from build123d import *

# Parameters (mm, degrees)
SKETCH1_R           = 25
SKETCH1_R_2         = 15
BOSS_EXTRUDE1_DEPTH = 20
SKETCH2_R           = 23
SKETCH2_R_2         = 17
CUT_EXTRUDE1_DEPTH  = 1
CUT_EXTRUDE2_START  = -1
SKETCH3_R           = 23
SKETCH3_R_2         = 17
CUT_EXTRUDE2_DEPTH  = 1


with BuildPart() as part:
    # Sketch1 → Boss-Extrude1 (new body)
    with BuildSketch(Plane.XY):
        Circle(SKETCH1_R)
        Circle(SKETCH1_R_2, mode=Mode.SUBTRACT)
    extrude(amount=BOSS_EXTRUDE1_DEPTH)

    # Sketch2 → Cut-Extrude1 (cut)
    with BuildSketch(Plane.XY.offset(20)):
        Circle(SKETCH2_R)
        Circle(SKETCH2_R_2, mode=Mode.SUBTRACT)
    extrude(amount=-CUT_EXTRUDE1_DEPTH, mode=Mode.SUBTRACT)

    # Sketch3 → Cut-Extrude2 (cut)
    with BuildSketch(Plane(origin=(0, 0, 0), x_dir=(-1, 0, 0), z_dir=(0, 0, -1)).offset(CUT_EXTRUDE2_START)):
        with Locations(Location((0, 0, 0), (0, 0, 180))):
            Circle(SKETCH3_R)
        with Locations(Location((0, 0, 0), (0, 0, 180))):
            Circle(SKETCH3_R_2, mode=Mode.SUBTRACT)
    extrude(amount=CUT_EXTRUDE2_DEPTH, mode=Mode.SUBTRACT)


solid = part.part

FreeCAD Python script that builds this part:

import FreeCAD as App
import Part
import Sketcher
Q = App.Units.Quantity

doc = App.newDocument("Part")
body = doc.addObject("PartDesign::Body", "Body")

sketch1 = body.newObject("Sketcher::SketchObject", "Sketch")
sketch1.AttachmentSupport = (doc.getObject("XY_Plane"), [""])
sketch1.MapMode = "FlatFace"
sketch1.addGeometry(Part.Circle(App.Vector(0, 0, 0), App.Vector(0, 0, 1), 25), False)
sketch1.addGeometry(Part.Circle(App.Vector(0, 0, 0), App.Vector(0, 0, 1), 15), False)
sketch1.addConstraint(Sketcher.Constraint("Coincident", 0, 3, -1, 1))
sketch1.addConstraint(Sketcher.Constraint("Coincident", 1, 3, -1, 1))
sketch1.addConstraint(Sketcher.Constraint("Diameter", 0, Q("50 mm")))
sketch1.addConstraint(Sketcher.Constraint("Diameter", 1, Q("30 mm")))
pad1 = body.newObject("PartDesign::Pad", "Pad")
pad1.Profile = sketch1
pad1.Length = 20

sketch2 = body.newObject("Sketcher::SketchObject", "Sketch001")
sketch2.AttachmentSupport = (doc.getObject("XY_Plane"), [""])
sketch2.MapMode = "FlatFace"
sketch2.AttachmentOffset = App.Placement(App.Vector(0, 0, 20), App.Rotation())
sketch2.addGeometry(Part.Circle(App.Vector(0, 0, 0), App.Vector(0, 0, 1), 23), False)
sketch2.addGeometry(Part.Circle(App.Vector(0, 0, 0), App.Vector(0, 0, 1), 17), False)
sketch2.addConstraint(Sketcher.Constraint("Coincident", 0, 3, -1, 1))
sketch2.addConstraint(Sketcher.Constraint("Coincident", 1, 3, -1, 1))
sketch2.addConstraint(Sketcher.Constraint("Diameter", 0, Q("46 mm")))
sketch2.addConstraint(Sketcher.Constraint("Diameter", 1, Q("34 mm")))
pocket1 = body.newObject("PartDesign::Pocket", "Pocket")
pocket1.Profile = sketch2
pocket1.Length = 1

sketch3 = body.newObject("Sketcher::SketchObject", "Sketch002")
sketch3.AttachmentSupport = (doc.getObject("XY_Plane"), [""])
sketch3.MapMode = "FlatFace"
sketch3.AttachmentOffset = App.Placement(App.Vector(0, 0, 1), App.Rotation())
sketch3.addGeometry(Part.Circle(App.Vector(0, 0, 0), App.Vector(0, 0, 1), 23), False)
sketch3.addGeometry(Part.Circle(App.Vector(0, 0, 0), App.Vector(0, 0, 1), 17), False)
sketch3.addConstraint(Sketcher.Constraint("Coincident", 0, 3, -1, 1))
sketch3.addConstraint(Sketcher.Constraint("Coincident", 1, 3, -1, 1))
sketch3.addConstraint(Sketcher.Constraint("Diameter", 0, Q("46 mm")))
sketch3.addConstraint(Sketcher.Constraint("Diameter", 1, Q("34 mm")))
pocket2 = body.newObject("PartDesign::Pocket", "Pocket001")
pocket2.Profile = sketch3
pocket2.Length = 1

doc.recompute()
